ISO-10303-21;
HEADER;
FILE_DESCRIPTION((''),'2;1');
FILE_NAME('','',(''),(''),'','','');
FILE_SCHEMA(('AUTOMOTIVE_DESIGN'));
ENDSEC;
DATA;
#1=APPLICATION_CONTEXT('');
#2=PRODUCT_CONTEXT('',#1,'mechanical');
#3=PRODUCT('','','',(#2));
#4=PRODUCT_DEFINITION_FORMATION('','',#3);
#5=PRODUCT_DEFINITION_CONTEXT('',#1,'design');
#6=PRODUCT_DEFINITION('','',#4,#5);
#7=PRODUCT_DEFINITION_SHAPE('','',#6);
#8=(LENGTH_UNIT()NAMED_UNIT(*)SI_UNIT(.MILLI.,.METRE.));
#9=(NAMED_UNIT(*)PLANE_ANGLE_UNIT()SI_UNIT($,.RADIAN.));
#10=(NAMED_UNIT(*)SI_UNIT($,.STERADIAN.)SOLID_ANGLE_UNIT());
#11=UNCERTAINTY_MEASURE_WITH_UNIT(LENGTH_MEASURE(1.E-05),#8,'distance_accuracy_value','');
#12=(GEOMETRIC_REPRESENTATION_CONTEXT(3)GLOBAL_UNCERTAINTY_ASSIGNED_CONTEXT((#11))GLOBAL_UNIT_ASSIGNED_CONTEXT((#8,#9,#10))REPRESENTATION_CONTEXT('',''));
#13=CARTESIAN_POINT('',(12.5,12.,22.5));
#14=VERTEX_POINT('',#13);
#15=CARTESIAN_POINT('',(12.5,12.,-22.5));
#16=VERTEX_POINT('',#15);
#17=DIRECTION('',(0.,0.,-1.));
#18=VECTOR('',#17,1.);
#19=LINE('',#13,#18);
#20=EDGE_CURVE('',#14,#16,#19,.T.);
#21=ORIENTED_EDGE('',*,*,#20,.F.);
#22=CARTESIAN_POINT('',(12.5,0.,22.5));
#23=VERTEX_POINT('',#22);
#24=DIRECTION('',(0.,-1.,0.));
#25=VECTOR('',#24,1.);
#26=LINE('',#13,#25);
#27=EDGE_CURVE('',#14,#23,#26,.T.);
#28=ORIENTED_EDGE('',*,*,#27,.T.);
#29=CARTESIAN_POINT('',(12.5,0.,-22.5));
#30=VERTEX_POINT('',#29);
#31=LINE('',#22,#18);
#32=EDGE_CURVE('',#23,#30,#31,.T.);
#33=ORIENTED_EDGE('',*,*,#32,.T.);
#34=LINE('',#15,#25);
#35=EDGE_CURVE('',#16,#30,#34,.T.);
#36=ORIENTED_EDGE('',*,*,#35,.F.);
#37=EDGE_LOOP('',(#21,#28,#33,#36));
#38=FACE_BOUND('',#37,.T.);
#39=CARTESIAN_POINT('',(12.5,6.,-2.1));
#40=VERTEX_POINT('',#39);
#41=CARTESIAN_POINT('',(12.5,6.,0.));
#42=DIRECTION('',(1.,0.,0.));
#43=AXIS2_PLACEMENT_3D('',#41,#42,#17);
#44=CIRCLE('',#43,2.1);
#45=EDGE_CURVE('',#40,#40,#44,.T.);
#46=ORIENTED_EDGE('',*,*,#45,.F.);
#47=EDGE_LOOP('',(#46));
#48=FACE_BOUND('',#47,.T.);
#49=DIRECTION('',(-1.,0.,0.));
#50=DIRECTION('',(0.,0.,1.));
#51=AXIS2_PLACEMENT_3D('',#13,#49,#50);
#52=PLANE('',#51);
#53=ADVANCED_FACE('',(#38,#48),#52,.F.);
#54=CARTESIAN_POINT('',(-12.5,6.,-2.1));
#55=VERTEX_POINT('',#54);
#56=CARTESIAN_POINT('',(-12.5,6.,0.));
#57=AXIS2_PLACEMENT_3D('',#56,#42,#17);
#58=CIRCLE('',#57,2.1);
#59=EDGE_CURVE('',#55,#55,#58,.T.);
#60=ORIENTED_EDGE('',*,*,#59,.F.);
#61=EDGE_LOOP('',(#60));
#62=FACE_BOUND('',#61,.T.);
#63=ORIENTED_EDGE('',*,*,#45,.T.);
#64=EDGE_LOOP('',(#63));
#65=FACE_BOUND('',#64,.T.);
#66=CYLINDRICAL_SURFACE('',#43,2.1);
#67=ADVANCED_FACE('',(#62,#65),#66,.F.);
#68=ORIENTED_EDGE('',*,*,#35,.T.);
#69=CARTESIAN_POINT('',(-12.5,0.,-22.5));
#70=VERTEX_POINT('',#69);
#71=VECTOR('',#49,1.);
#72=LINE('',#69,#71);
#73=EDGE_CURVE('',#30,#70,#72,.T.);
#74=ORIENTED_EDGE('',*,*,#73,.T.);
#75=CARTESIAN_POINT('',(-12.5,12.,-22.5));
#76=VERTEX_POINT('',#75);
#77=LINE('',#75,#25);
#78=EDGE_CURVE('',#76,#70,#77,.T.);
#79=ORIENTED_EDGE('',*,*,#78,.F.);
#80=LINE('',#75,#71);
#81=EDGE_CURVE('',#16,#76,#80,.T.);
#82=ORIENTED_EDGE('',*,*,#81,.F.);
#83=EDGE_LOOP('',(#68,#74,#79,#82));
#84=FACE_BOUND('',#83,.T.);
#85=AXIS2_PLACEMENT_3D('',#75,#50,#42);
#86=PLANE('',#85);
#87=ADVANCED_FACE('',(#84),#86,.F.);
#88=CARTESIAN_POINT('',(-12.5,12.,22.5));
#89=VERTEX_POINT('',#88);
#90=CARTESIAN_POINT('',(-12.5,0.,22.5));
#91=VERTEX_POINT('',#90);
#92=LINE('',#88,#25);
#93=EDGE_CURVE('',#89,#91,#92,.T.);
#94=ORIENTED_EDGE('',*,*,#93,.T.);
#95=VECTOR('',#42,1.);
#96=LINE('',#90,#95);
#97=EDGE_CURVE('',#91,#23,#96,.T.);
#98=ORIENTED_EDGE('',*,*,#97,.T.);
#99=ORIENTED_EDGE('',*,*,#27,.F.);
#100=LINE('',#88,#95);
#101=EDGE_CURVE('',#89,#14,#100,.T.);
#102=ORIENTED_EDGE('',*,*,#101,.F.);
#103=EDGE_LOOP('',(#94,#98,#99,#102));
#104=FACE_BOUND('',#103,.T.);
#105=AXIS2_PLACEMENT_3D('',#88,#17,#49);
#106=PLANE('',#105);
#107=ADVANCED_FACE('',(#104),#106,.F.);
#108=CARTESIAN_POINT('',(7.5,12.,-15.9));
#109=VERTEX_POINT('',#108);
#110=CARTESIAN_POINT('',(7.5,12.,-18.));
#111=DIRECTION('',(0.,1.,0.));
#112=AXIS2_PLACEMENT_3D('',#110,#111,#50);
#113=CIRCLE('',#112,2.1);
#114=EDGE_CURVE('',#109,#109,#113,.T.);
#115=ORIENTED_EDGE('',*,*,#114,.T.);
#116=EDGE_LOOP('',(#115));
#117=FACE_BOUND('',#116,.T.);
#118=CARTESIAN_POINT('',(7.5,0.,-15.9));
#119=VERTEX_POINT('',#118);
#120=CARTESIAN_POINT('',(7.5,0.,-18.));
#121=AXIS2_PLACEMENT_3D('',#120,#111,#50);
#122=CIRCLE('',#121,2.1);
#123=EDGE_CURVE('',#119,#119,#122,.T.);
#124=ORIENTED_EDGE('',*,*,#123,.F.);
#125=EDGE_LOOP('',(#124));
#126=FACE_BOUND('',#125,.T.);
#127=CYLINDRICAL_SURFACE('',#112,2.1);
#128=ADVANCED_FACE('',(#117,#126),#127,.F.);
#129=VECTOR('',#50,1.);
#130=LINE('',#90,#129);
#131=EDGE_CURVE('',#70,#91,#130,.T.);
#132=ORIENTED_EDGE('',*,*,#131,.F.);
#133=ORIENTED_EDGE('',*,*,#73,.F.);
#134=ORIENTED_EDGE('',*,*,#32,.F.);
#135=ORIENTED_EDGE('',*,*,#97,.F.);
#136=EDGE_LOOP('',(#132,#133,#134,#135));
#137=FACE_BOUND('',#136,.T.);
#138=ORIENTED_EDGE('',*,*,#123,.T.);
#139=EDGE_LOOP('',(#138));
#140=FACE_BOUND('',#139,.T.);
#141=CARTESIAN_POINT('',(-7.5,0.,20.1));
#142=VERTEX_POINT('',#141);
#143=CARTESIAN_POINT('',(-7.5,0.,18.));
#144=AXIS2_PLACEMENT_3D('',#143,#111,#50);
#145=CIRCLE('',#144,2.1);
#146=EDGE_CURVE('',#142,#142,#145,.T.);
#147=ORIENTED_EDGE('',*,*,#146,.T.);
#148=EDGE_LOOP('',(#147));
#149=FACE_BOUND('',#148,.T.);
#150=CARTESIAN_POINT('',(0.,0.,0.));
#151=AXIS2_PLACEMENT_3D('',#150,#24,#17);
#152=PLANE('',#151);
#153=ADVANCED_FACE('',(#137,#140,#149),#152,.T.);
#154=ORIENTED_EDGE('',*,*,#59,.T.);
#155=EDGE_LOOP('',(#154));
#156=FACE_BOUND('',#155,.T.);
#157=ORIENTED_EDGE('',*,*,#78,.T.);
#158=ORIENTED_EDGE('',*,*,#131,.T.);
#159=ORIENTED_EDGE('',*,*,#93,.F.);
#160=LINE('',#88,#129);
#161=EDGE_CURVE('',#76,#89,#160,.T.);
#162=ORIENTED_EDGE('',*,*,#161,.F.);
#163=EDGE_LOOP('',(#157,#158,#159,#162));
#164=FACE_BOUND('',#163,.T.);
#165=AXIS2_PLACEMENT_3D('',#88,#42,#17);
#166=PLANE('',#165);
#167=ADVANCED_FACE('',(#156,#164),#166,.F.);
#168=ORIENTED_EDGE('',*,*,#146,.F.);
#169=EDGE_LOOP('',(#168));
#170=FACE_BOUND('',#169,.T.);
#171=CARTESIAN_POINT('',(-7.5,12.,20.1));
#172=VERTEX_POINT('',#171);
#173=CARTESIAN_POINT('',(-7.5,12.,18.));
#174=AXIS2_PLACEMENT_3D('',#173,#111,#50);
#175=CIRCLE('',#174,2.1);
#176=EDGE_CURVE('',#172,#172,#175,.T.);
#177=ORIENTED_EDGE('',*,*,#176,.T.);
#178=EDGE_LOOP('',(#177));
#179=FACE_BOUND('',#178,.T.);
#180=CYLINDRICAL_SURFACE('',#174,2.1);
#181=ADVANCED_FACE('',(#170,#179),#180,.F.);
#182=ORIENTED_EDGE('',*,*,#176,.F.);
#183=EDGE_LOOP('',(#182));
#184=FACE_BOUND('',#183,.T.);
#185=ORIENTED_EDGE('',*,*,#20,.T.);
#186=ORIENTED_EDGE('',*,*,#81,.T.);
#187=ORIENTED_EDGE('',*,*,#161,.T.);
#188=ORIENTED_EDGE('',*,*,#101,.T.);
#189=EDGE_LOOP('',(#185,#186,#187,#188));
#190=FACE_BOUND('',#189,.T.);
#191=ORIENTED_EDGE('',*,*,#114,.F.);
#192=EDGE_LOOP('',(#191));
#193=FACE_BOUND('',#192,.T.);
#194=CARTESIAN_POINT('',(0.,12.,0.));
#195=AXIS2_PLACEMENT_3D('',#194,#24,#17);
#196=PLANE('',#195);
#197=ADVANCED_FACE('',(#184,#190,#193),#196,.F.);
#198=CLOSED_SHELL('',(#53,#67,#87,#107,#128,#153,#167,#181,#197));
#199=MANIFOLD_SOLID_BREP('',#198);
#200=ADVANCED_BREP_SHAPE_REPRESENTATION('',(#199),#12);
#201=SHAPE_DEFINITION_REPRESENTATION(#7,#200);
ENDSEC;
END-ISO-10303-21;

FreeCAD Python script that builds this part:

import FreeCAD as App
import Part
import Sketcher
Q = App.Units.Quantity

doc = App.newDocument("Part")
body = doc.addObject("PartDesign::Body", "Body")

# Sketch on XZ plane
sketch1 = doc.addObject("Sketcher::SketchObject", "Sketch")
body.addObject(sketch1)
sketch1.AttachmentSupport = (doc.XZ_Plane, [""])
sketch1.MapMode = "FlatFace"
sketch1.addGeometry(Part.LineSegment(App.Vector(-12, -22, 0), App.Vector(-12, 22, 0)), False)
sketch1.addGeometry(Part.LineSegment(App.Vector(-12, 22, 0), App.Vector(12, 22, 0)), False)
sketch1.addGeometry(Part.LineSegment(App.Vector(12, 22, 0), App.Vector(12, -22, 0)), False)
sketch1.addGeometry(Part.LineSegment(App.Vector(12, -22, 0), App.Vector(-12, -22, 0)), False)
sketch1.addConstraint(Sketcher.Constraint("Coincident", 0, 2, 1, 1))
sketch1.addConstraint(Sketcher.Constraint("Coincident", 1, 2, 2, 1))
sketch1.addConstraint(Sketcher.Constraint("Coincident", 2, 2, 3, 1))
sketch1.addConstraint(Sketcher.Constraint("Coincident", 3, 2, 0, 1))
sketch1.addConstraint(Sketcher.Constraint("Vertical", 0))
sketch1.addConstraint(Sketcher.Constraint("Horizontal", 1))
sketch1.addConstraint(Sketcher.Constraint("Vertical", 2))
sketch1.addConstraint(Sketcher.Constraint("Horizontal", 3))
sketch1.addConstraint(Sketcher.Constraint("Symmetric", 0, 2, 2, 2, -1, 1))
sketch1.addConstraint(Sketcher.Constraint("DistanceX", 1, 1, 1, 2, Q("25 mm")))
sketch1.addConstraint(Sketcher.Constraint("DistanceY", 0, 1, 0, 2, Q("45 mm")))
pad1 = doc.addObject("PartDesign::Pad", "Pad")
body.addObject(pad1)
pad1.Profile = sketch1
pad1.Length = 12
pad1.Reversed = True

# Sketch on XZ plane
sketch2 = doc.addObject("Sketcher::SketchObject", "Sketch001")
body.addObject(sketch2)
sketch2.AttachmentSupport = (doc.XZ_Plane, [""])
sketch2.MapMode = "FlatFace"
sketch2.AttachmentOffset = App.Placement(App.Vector(0, 0, -12), App.Rotation())
sketch2.addGeometry(Part.Circle(App.Vector(7.5, -18, 0), App.Vector(0, 0, 1), 2.1), False)
sketch2.addGeometry(Part.Circle(App.Vector(-7.5, 18, 0), App.Vector(0, 0, 1), 2.1), False)
sketch2.addConstraint(Sketcher.Constraint("Equal", 0, 1))
sketch2.addConstraint(Sketcher.Constraint("Symmetric", 0, 3, 1, 3, -1, 1))
sketch2.addConstraint(Sketcher.Constraint("Diameter", 0, Q("4.2 mm")))
sketch2.addConstraint(Sketcher.Constraint("DistanceY", 0, 3, -1, 1, Q("18 mm")))
sketch2.addConstraint(Sketcher.Constraint("DistanceX", 1, 3, 0, 3, Q("15 mm")))
doc.recompute()
hole = doc.addObject("PartDesign::Hole", "Hole")
body.addObject(hole)
hole.Profile = sketch2
hole.ThreadType = "None"
hole.Diameter = 4.2
hole.DepthType = "ThroughAll"
hole.Reversed = True

# Sketch on YZ plane
sketch3 = doc.addObject("Sketcher::SketchObject", "Sketch002")
body.addObject(sketch3)
sketch3.AttachmentSupport = (doc.YZ_Plane, [""])
sketch3.MapMode = "FlatFace"
sketch3.AttachmentOffset = App.Placement(App.Vector(0, 0, 12.5), App.Rotation())
sketch3.addGeometry(Part.Circle(App.Vector(6, 0, 0), App.Vector(0, 0, 1), 2.1), False)
sketch3.addConstraint(Sketcher.Constraint("PointOnObject", 0, 3, -1))
sketch3.addConstraint(Sketcher.Constraint("Diameter", 0, Q("4.2 mm")))
sketch3.addConstraint(Sketcher.Constraint("DistanceX", -1, 1, 0, 3, Q("6 mm")))
doc.recompute()
hole2 = doc.addObject("PartDesign::Hole", "Hole001")
body.addObject(hole2)
hole2.Profile = sketch3
hole2.ThreadType = "None"
hole2.Diameter = 4.2
hole2.DepthType = "ThroughAll"

doc.recompute()
